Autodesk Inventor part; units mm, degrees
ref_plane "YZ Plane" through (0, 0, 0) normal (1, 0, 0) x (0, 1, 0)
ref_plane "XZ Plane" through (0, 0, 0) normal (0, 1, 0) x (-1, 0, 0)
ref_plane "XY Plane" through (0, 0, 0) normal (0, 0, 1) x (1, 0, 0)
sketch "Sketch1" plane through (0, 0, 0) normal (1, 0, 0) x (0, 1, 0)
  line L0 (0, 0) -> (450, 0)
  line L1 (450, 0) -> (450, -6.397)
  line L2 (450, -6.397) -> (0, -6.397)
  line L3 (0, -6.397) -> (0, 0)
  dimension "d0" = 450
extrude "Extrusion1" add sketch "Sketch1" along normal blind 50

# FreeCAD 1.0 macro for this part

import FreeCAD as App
import Part
import Sketcher
from FreeCAD import Vector


def add_polygon(sketch, points):
    """Adds a closed chain of lines whose ends are joined by coincident constraints."""
    first, n = sketch.GeometryCount, len(points)
    for a, b in zip(points, points[1:] + points[:1]):
        sketch.addGeometry(Part.LineSegment(App.Vector(*a, 0), App.Vector(*b, 0)), False)
    for i in range(n):
        sketch.addConstraint(Sketcher.Constraint("Coincident", first + i, 2, first + (i + 1) % n, 1))

doc = App.newDocument("Part")
body = doc.addObject("PartDesign::Body", "Body")

# Sketch on YZ plane
sketch1 = doc.addObject("Sketcher::SketchObject", "Sketch")
body.addObject(sketch1)
sketch1.AttachmentSupport = (doc.YZ_Plane, [""])
sketch1.MapMode = "FlatFace"
add_polygon(sketch1, [(450, 0), (0, 0), (0, -6), (450, -6)])  # lines 0-3
sketch1.addConstraint([
    Sketcher.Constraint("Horizontal", 0),
    Sketcher.Constraint("Vertical", 1),
    Sketcher.Constraint("Horizontal", 2),
    Sketcher.Constraint("Vertical", 3),
    Sketcher.Constraint("Coincident", 0, 2, -1, 1),
    Sketcher.Constraint("DistanceX", 0, 2, 0, 1, 450.0),
    Sketcher.Constraint("DistanceY", 1, 2, 1, 1, 6.397),
])
pad1 = doc.addObject("PartDesign::Pad", "Pad")
body.addObject(pad1)
pad1.Profile = sketch1
pad1.Length = 50

doc.recompute()
